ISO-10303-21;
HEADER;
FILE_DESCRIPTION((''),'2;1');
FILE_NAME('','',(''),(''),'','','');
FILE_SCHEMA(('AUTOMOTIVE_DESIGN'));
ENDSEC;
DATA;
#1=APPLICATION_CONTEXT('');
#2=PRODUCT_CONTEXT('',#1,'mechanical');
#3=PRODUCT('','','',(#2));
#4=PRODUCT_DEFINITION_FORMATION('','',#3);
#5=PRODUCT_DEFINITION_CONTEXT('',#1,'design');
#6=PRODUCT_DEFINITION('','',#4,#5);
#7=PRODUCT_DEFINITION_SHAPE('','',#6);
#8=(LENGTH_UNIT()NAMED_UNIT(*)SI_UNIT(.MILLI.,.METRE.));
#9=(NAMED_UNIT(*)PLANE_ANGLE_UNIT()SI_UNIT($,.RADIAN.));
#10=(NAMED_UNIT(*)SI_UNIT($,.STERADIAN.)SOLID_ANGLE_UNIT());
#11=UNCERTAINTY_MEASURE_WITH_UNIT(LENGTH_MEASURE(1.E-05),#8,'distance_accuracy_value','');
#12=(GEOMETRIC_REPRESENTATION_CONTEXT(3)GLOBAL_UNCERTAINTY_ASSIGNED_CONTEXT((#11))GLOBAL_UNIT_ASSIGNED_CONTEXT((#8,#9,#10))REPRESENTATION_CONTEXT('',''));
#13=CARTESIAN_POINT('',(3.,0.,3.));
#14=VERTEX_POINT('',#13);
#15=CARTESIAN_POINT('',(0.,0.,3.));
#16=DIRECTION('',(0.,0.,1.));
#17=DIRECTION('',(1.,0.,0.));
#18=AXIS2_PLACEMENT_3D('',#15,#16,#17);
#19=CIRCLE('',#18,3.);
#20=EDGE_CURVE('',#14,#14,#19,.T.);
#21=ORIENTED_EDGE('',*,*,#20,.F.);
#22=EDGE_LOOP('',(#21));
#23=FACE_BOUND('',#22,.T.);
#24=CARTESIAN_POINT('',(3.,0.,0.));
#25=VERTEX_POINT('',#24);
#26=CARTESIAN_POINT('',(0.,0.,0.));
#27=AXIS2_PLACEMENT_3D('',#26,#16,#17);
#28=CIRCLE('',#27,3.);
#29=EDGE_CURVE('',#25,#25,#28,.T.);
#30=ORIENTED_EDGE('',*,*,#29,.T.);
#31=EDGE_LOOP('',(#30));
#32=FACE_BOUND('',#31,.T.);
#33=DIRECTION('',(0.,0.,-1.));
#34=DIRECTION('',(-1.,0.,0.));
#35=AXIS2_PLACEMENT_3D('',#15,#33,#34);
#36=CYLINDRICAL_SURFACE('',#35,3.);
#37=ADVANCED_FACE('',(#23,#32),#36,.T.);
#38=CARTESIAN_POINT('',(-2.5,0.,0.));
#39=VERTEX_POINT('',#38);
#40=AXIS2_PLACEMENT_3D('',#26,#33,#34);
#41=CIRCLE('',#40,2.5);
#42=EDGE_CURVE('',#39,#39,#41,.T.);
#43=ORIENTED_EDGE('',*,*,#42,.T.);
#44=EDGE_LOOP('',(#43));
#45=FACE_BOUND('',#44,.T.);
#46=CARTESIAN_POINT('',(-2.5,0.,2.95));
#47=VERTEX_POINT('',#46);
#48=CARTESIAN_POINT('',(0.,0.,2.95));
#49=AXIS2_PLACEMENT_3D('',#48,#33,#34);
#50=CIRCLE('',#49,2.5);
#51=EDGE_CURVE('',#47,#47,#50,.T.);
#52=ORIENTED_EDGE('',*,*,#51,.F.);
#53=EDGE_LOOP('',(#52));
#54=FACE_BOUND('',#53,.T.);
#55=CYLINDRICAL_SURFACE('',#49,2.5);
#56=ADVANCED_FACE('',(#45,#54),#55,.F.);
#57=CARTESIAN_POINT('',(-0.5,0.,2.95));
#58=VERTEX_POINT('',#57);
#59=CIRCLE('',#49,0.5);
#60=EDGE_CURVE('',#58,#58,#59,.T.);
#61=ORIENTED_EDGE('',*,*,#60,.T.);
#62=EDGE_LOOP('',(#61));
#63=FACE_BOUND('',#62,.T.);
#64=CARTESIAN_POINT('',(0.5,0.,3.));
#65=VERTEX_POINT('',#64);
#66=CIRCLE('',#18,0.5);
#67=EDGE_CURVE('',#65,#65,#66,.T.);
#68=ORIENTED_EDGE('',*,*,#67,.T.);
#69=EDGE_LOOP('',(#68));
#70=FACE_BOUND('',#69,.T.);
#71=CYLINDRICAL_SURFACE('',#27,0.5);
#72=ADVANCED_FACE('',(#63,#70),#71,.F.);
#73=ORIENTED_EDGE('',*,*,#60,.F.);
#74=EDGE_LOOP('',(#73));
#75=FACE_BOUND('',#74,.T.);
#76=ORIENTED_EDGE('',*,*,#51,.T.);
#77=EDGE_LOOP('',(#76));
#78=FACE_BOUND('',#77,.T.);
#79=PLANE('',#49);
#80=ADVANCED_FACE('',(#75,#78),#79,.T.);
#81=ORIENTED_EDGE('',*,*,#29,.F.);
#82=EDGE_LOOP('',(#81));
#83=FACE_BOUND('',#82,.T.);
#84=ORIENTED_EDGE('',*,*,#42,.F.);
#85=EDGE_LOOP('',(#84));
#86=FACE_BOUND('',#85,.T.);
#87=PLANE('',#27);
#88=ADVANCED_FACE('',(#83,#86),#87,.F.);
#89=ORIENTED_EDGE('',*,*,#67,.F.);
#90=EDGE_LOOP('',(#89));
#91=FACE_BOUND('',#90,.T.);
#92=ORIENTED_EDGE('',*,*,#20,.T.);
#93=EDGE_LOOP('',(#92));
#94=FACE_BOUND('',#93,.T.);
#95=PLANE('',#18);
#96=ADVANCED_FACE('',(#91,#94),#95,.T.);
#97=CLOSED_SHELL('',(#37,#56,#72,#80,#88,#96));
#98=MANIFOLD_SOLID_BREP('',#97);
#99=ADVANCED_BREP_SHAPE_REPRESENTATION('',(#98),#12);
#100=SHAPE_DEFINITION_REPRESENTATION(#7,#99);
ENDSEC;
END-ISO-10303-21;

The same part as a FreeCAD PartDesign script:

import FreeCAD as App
import Part
import Sketcher
from FreeCAD import Vector

doc = App.newDocument("Part")
body = doc.addObject("PartDesign::Body", "Body")

# Sketch on XY plane
sketch1 = body.newObject("Sketcher::SketchObject", "Sketch")
sketch1.AttachmentSupport = (doc.getObject("XY_Plane"), [""])
sketch1.MapMode = "FlatFace"
sketch1.addGeometry(Part.Circle(Vector(0, 0, 0), Vector(0, 0, 1), 3), False)
sketch1.addConstraint(Sketcher.Constraint("Coincident", 0, 3, -1, 1))
sketch1.addConstraint(Sketcher.Constraint("Diameter", 0, 6.0))
pad1 = body.newObject("PartDesign::Pad", "Pad")
pad1.Profile = sketch1
pad1.Length = 3

# Sketch on XY plane
sketch2 = body.newObject("Sketcher::SketchObject", "Sketch001")
sketch2.AttachmentSupport = (doc.getObject("XY_Plane"), [""])
sketch2.MapMode = "FlatFace"
sketch2.addGeometry(Part.Circle(Vector(0, 0, 0), Vector(0, 0, 1), 2.5), False)
sketch2.addConstraint(Sketcher.Constraint("Coincident", 0, 3, -1, 1))
sketch2.addConstraint(Sketcher.Constraint("Diameter", 0, 5.0))
pocket1 = body.newObject("PartDesign::Pocket", "Pocket")
pocket1.Profile = sketch2
pocket1.Length = 2.95
pocket1.Reversed = True

# Sketch on XY plane
sketch3 = body.newObject("Sketcher::SketchObject", "Sketch002")
sketch3.AttachmentSupport = (doc.getObject("XY_Plane"), [""])
sketch3.MapMode = "FlatFace"
sketch3.AttachmentOffset = App.Placement(Vector(0, 0, 3), App.Rotation())
sketch3.addGeometry(Part.Circle(Vector(0, 0, 0), Vector(0, 0, 1), 0.5), False)
sketch3.addConstraint(Sketcher.Constraint("Coincident", 0, 3, -1, 1))
sketch3.addConstraint(Sketcher.Constraint("Diameter", 0, 1.0))
pocket2 = body.newObject("PartDesign::Pocket", "Pocket001")
pocket2.Profile = sketch3
pocket2.Length = 3

doc.recompute()
